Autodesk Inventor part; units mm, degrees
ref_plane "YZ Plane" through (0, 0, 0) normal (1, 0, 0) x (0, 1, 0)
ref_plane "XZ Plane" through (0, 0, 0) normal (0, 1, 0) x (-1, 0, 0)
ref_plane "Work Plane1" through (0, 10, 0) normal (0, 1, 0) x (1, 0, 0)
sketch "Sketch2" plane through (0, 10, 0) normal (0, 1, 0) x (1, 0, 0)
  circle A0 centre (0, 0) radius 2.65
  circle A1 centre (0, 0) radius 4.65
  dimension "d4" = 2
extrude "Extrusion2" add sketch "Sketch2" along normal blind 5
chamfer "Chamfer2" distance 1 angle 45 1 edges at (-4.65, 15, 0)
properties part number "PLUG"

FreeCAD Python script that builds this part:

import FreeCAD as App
import Part
import Sketcher

V = App.Vector


def edges_at(feature, points):
    """Names of the edges that pass closest to the given points."""
    edges = feature.Shape.Edges
    near = lambda p: min(range(len(edges)), key=lambda i: edges[i].distToShape(Part.Vertex(*p))[0])
    return sorted({f"Edge{near(p) + 1}" for p in points})

doc = App.newDocument("Part")
body = doc.addObject("PartDesign::Body", "Body")

# Sketch on XZ plane
sketch1 = body.newObject("Sketcher::SketchObject", "Sketch")
sketch1.AttachmentSupport = (doc.getObject("XZ_Plane"), [""])
sketch1.MapMode = "FlatFace"
sketch1.AttachmentOffset = App.Placement(V(0, 0, -10), App.Rotation())
sketch1.addGeometry(Part.Circle(V(0, 0, 0), V(0, 0, 1), 4.7), False)
sketch1.addGeometry(Part.Circle(V(0, 0, 0), V(0, 0, 1), 2.6), False)
sketch1.addConstraint(Sketcher.Constraint("Coincident", 0, 3, -1, 1))
sketch1.addConstraint(Sketcher.Constraint("Coincident", 1, 3, -1, 1))
sketch1.addConstraint(Sketcher.Constraint("Diameter", 0, 9.3))
sketch1.addConstraint(Sketcher.Constraint("Diameter", 1, 5.3))
pad1 = body.newObject("PartDesign::Pad", "Pad")
pad1.Profile = sketch1
pad1.Length = 5
pad1.Reversed = True
doc.recompute()

chamfer = body.newObject("PartDesign::Chamfer", "Chamfer")
chamfer.Base = (pad1, edges_at(pad1, [(-4.65, 15, 0)]))
chamfer.Size = 1

doc.recompute()
